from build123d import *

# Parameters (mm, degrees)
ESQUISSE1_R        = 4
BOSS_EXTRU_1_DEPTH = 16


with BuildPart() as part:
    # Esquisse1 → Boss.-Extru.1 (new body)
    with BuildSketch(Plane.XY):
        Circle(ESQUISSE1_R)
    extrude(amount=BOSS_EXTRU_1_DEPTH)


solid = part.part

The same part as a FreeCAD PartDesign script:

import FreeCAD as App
import Part
import Sketcher

doc = App.newDocument("Part")
body = doc.addObject("PartDesign::Body", "Body")

# Sketch on XY plane
sketch1 = doc.addObject("Sketcher::SketchObject", "Sketch")
body.addObject(sketch1)
sketch1.AttachmentSupport = (doc.XY_Plane, [""])
sketch1.MapMode = "FlatFace"
sketch1.addGeometry(Part.Circle(App.Vector(0, 0, 0), App.Vector(0, 0, 1), 4), False)
sketch1.addConstraint(Sketcher.Constraint("Coincident", 0, 3, -1, 1))
sketch1.addConstraint(Sketcher.Constraint("Diameter", 0, 8.0))
pad1 = doc.addObject("PartDesign::Pad", "Pad")
body.addObject(pad1)
pad1.Profile = sketch1
pad1.Length = 16

doc.recompute()
